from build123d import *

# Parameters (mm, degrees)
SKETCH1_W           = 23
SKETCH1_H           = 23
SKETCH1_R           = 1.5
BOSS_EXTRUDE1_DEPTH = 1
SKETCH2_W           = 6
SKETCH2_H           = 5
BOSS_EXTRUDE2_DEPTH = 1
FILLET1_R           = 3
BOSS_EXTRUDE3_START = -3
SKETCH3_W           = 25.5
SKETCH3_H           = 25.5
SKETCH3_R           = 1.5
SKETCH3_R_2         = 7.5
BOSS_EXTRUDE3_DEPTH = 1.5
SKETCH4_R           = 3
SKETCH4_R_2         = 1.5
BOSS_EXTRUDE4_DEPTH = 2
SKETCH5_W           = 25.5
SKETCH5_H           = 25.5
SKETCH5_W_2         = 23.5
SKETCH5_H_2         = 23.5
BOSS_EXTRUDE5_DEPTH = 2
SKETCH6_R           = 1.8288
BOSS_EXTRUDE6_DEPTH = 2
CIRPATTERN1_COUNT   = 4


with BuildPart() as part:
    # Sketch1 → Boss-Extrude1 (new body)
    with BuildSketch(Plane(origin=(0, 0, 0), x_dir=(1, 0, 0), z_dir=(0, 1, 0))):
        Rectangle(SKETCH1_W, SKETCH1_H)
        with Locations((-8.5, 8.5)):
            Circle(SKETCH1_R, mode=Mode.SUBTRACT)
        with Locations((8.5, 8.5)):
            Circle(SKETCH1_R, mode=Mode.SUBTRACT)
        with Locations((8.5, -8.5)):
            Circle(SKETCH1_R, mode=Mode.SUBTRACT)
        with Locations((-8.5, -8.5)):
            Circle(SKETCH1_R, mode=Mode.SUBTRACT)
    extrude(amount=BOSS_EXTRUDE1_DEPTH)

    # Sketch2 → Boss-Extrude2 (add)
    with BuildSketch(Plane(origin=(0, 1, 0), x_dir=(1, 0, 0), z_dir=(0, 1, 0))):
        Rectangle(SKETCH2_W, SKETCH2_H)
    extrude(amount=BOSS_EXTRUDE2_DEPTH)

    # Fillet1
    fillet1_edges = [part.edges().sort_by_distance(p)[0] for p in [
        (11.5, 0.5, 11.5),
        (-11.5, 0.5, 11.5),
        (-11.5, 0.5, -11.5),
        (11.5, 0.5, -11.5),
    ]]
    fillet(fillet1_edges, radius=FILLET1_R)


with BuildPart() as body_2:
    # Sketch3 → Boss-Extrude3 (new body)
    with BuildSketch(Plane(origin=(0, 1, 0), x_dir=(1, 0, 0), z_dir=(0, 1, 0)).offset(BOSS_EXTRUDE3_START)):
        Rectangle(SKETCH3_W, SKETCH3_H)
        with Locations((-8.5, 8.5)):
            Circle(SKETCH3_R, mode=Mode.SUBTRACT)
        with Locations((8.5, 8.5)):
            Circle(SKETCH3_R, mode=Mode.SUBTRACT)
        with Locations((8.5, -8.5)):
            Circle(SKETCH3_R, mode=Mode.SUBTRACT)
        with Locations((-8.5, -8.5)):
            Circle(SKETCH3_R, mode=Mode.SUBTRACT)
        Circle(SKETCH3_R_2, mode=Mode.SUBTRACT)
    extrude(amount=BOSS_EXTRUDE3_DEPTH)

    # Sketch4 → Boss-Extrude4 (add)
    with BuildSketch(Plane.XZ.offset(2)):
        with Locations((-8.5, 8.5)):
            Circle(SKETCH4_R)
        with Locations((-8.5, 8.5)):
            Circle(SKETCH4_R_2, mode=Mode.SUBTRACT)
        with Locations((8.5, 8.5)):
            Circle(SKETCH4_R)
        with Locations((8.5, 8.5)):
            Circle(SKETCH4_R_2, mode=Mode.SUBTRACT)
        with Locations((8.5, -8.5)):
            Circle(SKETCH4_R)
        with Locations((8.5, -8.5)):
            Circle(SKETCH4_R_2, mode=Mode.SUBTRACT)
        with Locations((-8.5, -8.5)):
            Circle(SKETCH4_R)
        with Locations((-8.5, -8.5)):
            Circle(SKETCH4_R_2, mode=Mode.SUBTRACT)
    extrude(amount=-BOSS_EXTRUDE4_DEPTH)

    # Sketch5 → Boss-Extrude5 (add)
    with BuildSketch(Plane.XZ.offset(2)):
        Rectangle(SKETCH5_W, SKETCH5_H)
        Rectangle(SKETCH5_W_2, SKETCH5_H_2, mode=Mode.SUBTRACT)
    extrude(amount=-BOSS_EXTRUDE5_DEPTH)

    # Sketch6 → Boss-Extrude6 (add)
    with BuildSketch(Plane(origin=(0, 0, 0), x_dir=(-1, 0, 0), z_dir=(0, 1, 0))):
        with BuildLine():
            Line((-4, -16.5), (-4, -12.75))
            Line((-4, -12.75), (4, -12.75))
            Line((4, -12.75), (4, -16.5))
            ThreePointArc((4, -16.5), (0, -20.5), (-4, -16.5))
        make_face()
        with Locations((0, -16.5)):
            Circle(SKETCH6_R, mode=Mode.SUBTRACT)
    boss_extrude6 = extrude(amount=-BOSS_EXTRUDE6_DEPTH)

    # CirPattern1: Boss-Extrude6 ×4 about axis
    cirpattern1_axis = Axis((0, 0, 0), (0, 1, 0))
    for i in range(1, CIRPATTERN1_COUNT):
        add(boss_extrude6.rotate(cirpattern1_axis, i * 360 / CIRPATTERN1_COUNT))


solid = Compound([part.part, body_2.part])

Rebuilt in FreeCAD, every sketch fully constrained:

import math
import FreeCAD as App
import Part
import Sketcher
Q = App.Units.Quantity


def edges_at(feature, points):
    """Names of the edges that pass closest to the given points."""
    edges = feature.Shape.Edges
    near = lambda p: min(range(len(edges)), key=lambda i: edges[i].distToShape(Part.Vertex(*p))[0])
    return sorted({f"Edge{near(p) + 1}" for p in points})

doc = App.newDocument("Part")
body = doc.addObject("PartDesign::Body", "Body")

# Sketch on XZ plane
sketch1 = body.newObject("Sketcher::SketchObject", "Sketch")
sketch1.AttachmentSupport = (doc.getObject("XZ_Plane"), [""])
sketch1.MapMode = "FlatFace"
sketch1.addGeometry(Part.LineSegment(App.Vector(-11.5, -11.5, 0), App.Vector(-11.5, 11.5, 0)), False)
sketch1.addGeometry(Part.LineSegment(App.Vector(-11.5, 11.5, 0), App.Vector(11.5, 11.5, 0)), False)
sketch1.addGeometry(Part.LineSegment(App.Vector(11.5, 11.5, 0), App.Vector(11.5, -11.5, 0)), False)
sketch1.addGeometry(Part.LineSegment(App.Vector(11.5, -11.5, 0), App.Vector(-11.5, -11.5, 0)), False)
sketch1.addGeometry(Part.Circle(App.Vector(-8.5, 8.5, 0), App.Vector(0, 0, 1), 1.5), False)
sketch1.addGeometry(Part.Circle(App.Vector(8.5, 8.5, 0), App.Vector(0, 0, 1), 1.5), False)
sketch1.addGeometry(Part.Circle(App.Vector(-8.5, -8.5, 0), App.Vector(0, 0, 1), 1.5), False)
sketch1.addGeometry(Part.Circle(App.Vector(8.5, -8.5, 0), App.Vector(0, 0, 1), 1.5), False)
sketch1.addConstraint(Sketcher.Constraint("Coincident", 0, 2, 1, 1))
sketch1.addConstraint(Sketcher.Constraint("Coincident", 1, 2, 2, 1))
sketch1.addConstraint(Sketcher.Constraint("Coincident", 2, 2, 3, 1))
sketch1.addConstraint(Sketcher.Constraint("Coincident", 3, 2, 0, 1))
sketch1.addConstraint(Sketcher.Constraint("Vertical", 0))
sketch1.addConstraint(Sketcher.Constraint("Horizontal", 1))
sketch1.addConstraint(Sketcher.Constraint("Vertical", 2))
sketch1.addConstraint(Sketcher.Constraint("Horizontal", 3))
sketch1.addConstraint(Sketcher.Constraint("Equal", 4, 5))
sketch1.addConstraint(Sketcher.Constraint("Equal", 5, 6))
sketch1.addConstraint(Sketcher.Constraint("Equal", 6, 7))
sketch1.addConstraint(Sketcher.Constraint("Symmetric", 5, 3, 6, 3, -1, 1))
sketch1.addConstraint(Sketcher.Constraint("Symmetric", 4, 3, 7, 3, -1, 1))
sketch1.addConstraint(Sketcher.Constraint("Symmetric", 0, 2, 2, 2, -1, 1))
sketch1.addConstraint(Sketcher.Constraint("Symmetric", 4, 3, 5, 3, -2))
sketch1.addConstraint(Sketcher.Constraint("Equal", 3, 0))
sketch1.addConstraint(Sketcher.Constraint("Diameter", 4, Q("3 mm")))
sketch1.addConstraint(Sketcher.Constraint("DistanceX", 1, 1, 1, 2, Q("23 mm")))
sketch1.addConstraint(Sketcher.Constraint("DistanceX", 4, 3, 5, 3, Q("17 mm")))
sketch1.addConstraint(Sketcher.Constraint("DistanceY", 6, 3, 4, 3, Q("17 mm")))
pad1 = body.newObject("PartDesign::Pad", "Pad")
pad1.Profile = sketch1
pad1.Length = 1
pad1.Reversed = True

# Sketch on XZ plane
sketch2 = body.newObject("Sketcher::SketchObject", "Sketch001")
sketch2.AttachmentSupport = (doc.getObject("XZ_Plane"), [""])
sketch2.MapMode = "FlatFace"
sketch2.AttachmentOffset = App.Placement(App.Vector(0, 0, -1), App.Rotation())
sketch2.addGeometry(Part.LineSegment(App.Vector(-3, -2, 0), App.Vector(-3, 2, 0)), False)
sketch2.addGeometry(Part.LineSegment(App.Vector(-3, 2, 0), App.Vector(3, 2, 0)), False)
sketch2.addGeometry(Part.LineSegment(App.Vector(3, 2, 0), App.Vector(3, -2, 0)), False)
sketch2.addGeometry(Part.LineSegment(App.Vector(3, -2, 0), App.Vector(-3, -2, 0)), False)
sketch2.addConstraint(Sketcher.Constraint("Coincident", 0, 2, 1, 1))
sketch2.addConstraint(Sketcher.Constraint("Coincident", 1, 2, 2, 1))
sketch2.addConstraint(Sketcher.Constraint("Coincident", 2, 2, 3, 1))
sketch2.addConstraint(Sketcher.Constraint("Coincident", 3, 2, 0, 1))
sketch2.addConstraint(Sketcher.Constraint("Vertical", 0))
sketch2.addConstraint(Sketcher.Constraint("Horizontal", 1))
sketch2.addConstraint(Sketcher.Constraint("Vertical", 2))
sketch2.addConstraint(Sketcher.Constraint("Horizontal", 3))
sketch2.addConstraint(Sketcher.Constraint("Symmetric", 0, 2, 2, 2, -1, 1))
sketch2.addConstraint(Sketcher.Constraint("DistanceX", 1, 1, 1, 2, Q("6 mm")))
sketch2.addConstraint(Sketcher.Constraint("DistanceY", 0, 1, 0, 2, Q("5 mm")))
pad2 = body.newObject("PartDesign::Pad", "Pad001")
pad2.Profile = sketch2
pad2.Length = 1
pad2.Reversed = True
doc.recompute()

fillet = body.newObject("PartDesign::Fillet", "Fillet")
fillet.Base = (pad2, edges_at(pad2, [
    (11.5, 0.5, 11.5),
    (-11.5, 0.5, 11.5),
    (-11.5, 0.5, -11.5),
    (11.5, 0.5, -11.5),
]))
fillet.Radius = 3
body2 = doc.addObject("PartDesign::Body", "Body001")

# Sketch on XZ plane
sketch3 = body2.newObject("Sketcher::SketchObject", "Sketch002")
sketch3.AttachmentSupport = (doc.getObject("XZ_Plane001"), [""])
sketch3.MapMode = "FlatFace"
sketch3.AttachmentOffset = App.Placement(App.Vector(0, 0, 2), App.Rotation())
sketch3.addGeometry(Part.LineSegment(App.Vector(-12.8, -12.8, 0), App.Vector(-12.8, 12.8, 0)), False)
sketch3.addGeometry(Part.LineSegment(App.Vector(-12.8, 12.8, 0), App.Vector(12.8, 12.8, 0)), False)
sketch3.addGeometry(Part.LineSegment(App.Vector(12.8, 12.8, 0), App.Vector(12.8, -12.8, 0)), False)
sketch3.addGeometry(Part.LineSegment(App.Vector(12.8, -12.8, 0), App.Vector(-12.8, -12.8, 0)), False)
sketch3.addGeometry(Part.Circle(App.Vector(-8.5, 8.5, 0), App.Vector(0, 0, 1), 1.5), False)
sketch3.addGeometry(Part.Circle(App.Vector(8.5, 8.5, 0), App.Vector(0, 0, 1), 1.5), False)
sketch3.addGeometry(Part.Circle(App.Vector(-8.5, -8.5, 0), App.Vector(0, 0, 1), 1.5), False)
sketch3.addGeometry(Part.Circle(App.Vector(0, 0, 0), App.Vector(0, 0, 1), 7.5), False)
sketch3.addGeometry(Part.Circle(App.Vector(8.5, -8.5, 0), App.Vector(0, 0, 1), 1.5), False)
sketch3.addConstraint(Sketcher.Constraint("Coincident", 0, 2, 1, 1))
sketch3.addConstraint(Sketcher.Constraint("Coincident", 1, 2, 2, 1))
sketch3.addConstraint(Sketcher.Constraint("Coincident", 2, 2, 3, 1))
sketch3.addConstraint(Sketcher.Constraint("Coincident", 3, 2, 0, 1))
sketch3.addConstraint(Sketcher.Constraint("Vertical", 0))
sketch3.addConstraint(Sketcher.Constraint("Horizontal", 1))
sketch3.addConstraint(Sketcher.Constraint("Vertical", 2))
sketch3.addConstraint(Sketcher.Constraint("Horizontal", 3))
sketch3.addConstraint(Sketcher.Constraint("Coincident", 7, 3, -1, 1))
sketch3.addConstraint(Sketcher.Constraint("Equal", 4, 5))
sketch3.addConstraint(Sketcher.Constraint("Equal", 5, 6))
sketch3.addConstraint(Sketcher.Constraint("Equal", 6, 8))
sketch3.addConstraint(Sketcher.Constraint("Symmetric", 5, 3, 6, 3, -1, 1))
sketch3.addConstraint(Sketcher.Constraint("Symmetric", 4, 3, 8, 3, -1, 1))
sketch3.addConstraint(Sketcher.Constraint("Symmetric", 0, 2, 2, 2, -1, 1))
sketch3.addConstraint(Sketcher.Constraint("Symmetric", 4, 3, 5, 3, -2))
sketch3.addConstraint(Sketcher.Constraint("Equal", 3, 0))
sketch3.addConstraint(Sketcher.Constraint("Diameter", 4, Q("3 mm")))
sketch3.addConstraint(Sketcher.Constraint("Diameter", 7, Q("15 mm")))
sketch3.addConstraint(Sketcher.Constraint("DistanceX", 1, 1, 1, 2, Q("25.5 mm")))
sketch3.addConstraint(Sketcher.Constraint("DistanceX", 4, 3, 5, 3, Q("17 mm")))
sketch3.addConstraint(Sketcher.Constraint("DistanceY", 6, 3, 4, 3, Q("17 mm")))
pad3 = body2.newObject("PartDesign::Pad", "Pad002")
pad3.Profile = sketch3
pad3.Length = 1.5
pad3.Reversed = True

# Sketch on XZ plane
sketch4 = body2.newObject("Sketcher::SketchObject", "Sketch003")
sketch4.AttachmentSupport = (doc.getObject("XZ_Plane001"), [""])
sketch4.MapMode = "FlatFace"
sketch4.AttachmentOffset = App.Placement(App.Vector(0, 0, 2), App.Rotation())
sketch4.addGeometry(Part.Circle(App.Vector(-8.5, 8.5, 0), App.Vector(0, 0, 1), 3), False)
sketch4.addGeometry(Part.Circle(App.Vector(-8.5, 8.5, 0), App.Vector(0, 0, 1), 1.5), False)
sketch4.addGeometry(Part.Circle(App.Vector(8.5, 8.5, 0), App.Vector(0, 0, 1), 3), False)
sketch4.addGeometry(Part.Circle(App.Vector(8.5, 8.5, 0), App.Vector(0, 0, 1), 1.5), False)
sketch4.addGeometry(Part.Circle(App.Vector(8.5, -8.5, 0), App.Vector(0, 0, 1), 3), False)
sketch4.addGeometry(Part.Circle(App.Vector(8.5, -8.5, 0), App.Vector(0, 0, 1), 1.5), False)
sketch4.addGeometry(Part.Circle(App.Vector(-8.5, -8.5, 0), App.Vector(0, 0, 1), 3), False)
sketch4.addGeometry(Part.Circle(App.Vector(-8.5, -8.5, 0), App.Vector(0, 0, 1), 1.5), False)
sketch4.addConstraint(Sketcher.Constraint("Coincident", 1, 3, 0, 3))
sketch4.addConstraint(Sketcher.Constraint("Coincident", 3, 3, 2, 3))
sketch4.addConstraint(Sketcher.Constraint("Coincident", 5, 3, 4, 3))
sketch4.addConstraint(Sketcher.Constraint("Coincident", 7, 3, 6, 3))
sketch4.addConstraint(Sketcher.Constraint("Equal", 0, 2))
sketch4.addConstraint(Sketcher.Constraint("Equal", 1, 3))
sketch4.addConstraint(Sketcher.Constraint("Equal", 2, 4))
sketch4.addConstraint(Sketcher.Constraint("Equal", 3, 5))
sketch4.addConstraint(Sketcher.Constraint("Equal", 4, 6))
sketch4.addConstraint(Sketcher.Constraint("Equal", 5, 7))
sketch4.addConstraint(Sketcher.Constraint("Symmetric", 0, 3, 4, 3, -1, 1))
sketch4.addConstraint(Sketcher.Constraint("Symmetric", 2, 3, 6, 3, -1, 1))
sketch4.addConstraint(Sketcher.Constraint("Symmetric", 0, 3, 2, 3, -2))
sketch4.addConstraint(Sketcher.Constraint("Diameter", 0, Q("6 mm")))
sketch4.addConstraint(Sketcher.Constraint("Diameter", 1, Q("3 mm")))
sketch4.addConstraint(Sketcher.Constraint("DistanceX", 0, 3, 2, 3, Q("17 mm")))
sketch4.addConstraint(Sketcher.Constraint("DistanceY", 4, 3, 2, 3, Q("17 mm")))
pad4 = body2.newObject("PartDesign::Pad", "Pad003")
pad4.Profile = sketch4
pad4.Length = 2
pad4.Reversed = True

# Sketch on XZ plane
sketch5 = body2.newObject("Sketcher::SketchObject", "Sketch004")
sketch5.AttachmentSupport = (doc.getObject("XZ_Plane001"), [""])
sketch5.MapMode = "FlatFace"
sketch5.AttachmentOffset = App.Placement(App.Vector(0, 0, 2), App.Rotation())
sketch5.addGeometry(Part.LineSegment(App.Vector(-13, 13, 0), App.Vector(-13, -13, 0)), False)
sketch5.addGeometry(Part.LineSegment(App.Vector(-13, -13, 0), App.Vector(13, -13, 0)), False)
sketch5.addGeometry(Part.LineSegment(App.Vector(13, -13, 0), App.Vector(13, 13, 0)), False)
sketch5.addGeometry(Part.LineSegment(App.Vector(13, 13, 0), App.Vector(-13, 13, 0)), False)
sketch5.addGeometry(Part.LineSegment(App.Vector(12, -12, 0), App.Vector(-12, -12, 0)), False)
sketch5.addGeometry(Part.LineSegment(App.Vector(-12, -12, 0), App.Vector(-12, 12, 0)), False)
sketch5.addGeometry(Part.LineSegment(App.Vector(-12, 12, 0), App.Vector(12, 12, 0)), False)
sketch5.addGeometry(Part.LineSegment(App.Vector(12, 12, 0), App.Vector(12, -12, 0)), False)
sketch5.addConstraint(Sketcher.Constraint("Coincident", 0, 2, 1, 1))
sketch5.addConstraint(Sketcher.Constraint("Coincident", 1, 2, 2, 1))
sketch5.addConstraint(Sketcher.Constraint("Coincident", 2, 2, 3, 1))
sketch5.addConstraint(Sketcher.Constraint("Coincident", 3, 2, 0, 1))
sketch5.addConstraint(Sketcher.Constraint("Coincident", 4, 2, 5, 1))
sketch5.addConstraint(Sketcher.Constraint("Coincident", 5, 2, 6, 1))
sketch5.addConstraint(Sketcher.Constraint("Coincident", 6, 2, 7, 1))
sketch5.addConstraint(Sketcher.Constraint("Coincident", 7, 2, 4, 1))
sketch5.addConstraint(Sketcher.Constraint("Vertical", 0))
sketch5.addConstraint(Sketcher.Constraint("Horizontal", 1))
sketch5.addConstraint(Sketcher.Constraint("Vertical", 2))
sketch5.addConstraint(Sketcher.Constraint("Horizontal", 3))
sketch5.addConstraint(Sketcher.Constraint("Horizontal", 4))
sketch5.addConstraint(Sketcher.Constraint("Vertical", 5))
sketch5.addConstraint(Sketcher.Constraint("Horizontal", 6))
sketch5.addConstraint(Sketcher.Constraint("Vertical", 7))
sketch5.addConstraint(Sketcher.Constraint("Symmetric", 0, 2, 2, 2, -1, 1))
sketch5.addConstraint(Sketcher.Constraint("Symmetric", 4, 2, 6, 2, -1, 1))
sketch5.addConstraint(Sketcher.Constraint("Equal", 3, 0))
sketch5.addConstraint(Sketcher.Constraint("Equal", 6, 5))
sketch5.addConstraint(Sketcher.Constraint("DistanceX", 1, 1, 1, 2, Q("25.5 mm")))
sketch5.addConstraint(Sketcher.Constraint("DistanceX", 4, 2, 4, 1, Q("23.5 mm")))
pad5 = body2.newObject("PartDesign::Pad", "Pad004")
pad5.Profile = sketch5
pad5.Length = 2
pad5.Reversed = True

# Sketch on XZ plane
sketch6 = body2.newObject("Sketcher::SketchObject", "Sketch005")
sketch6.AttachmentSupport = (doc.getObject("XZ_Plane001"), [""])
sketch6.MapMode = "FlatFace"
sketch6.addGeometry(Part.LineSegment(App.Vector(4, -12.8, 0), App.Vector(4, -16.5, 0)), False)
sketch6.addGeometry(Part.ArcOfCircle(Part.Circle(App.Vector(0, -16.5, 0), App.Vector(0, 0, 1), 4), math.radians(180), math.radians(360)), False)
sketch6.addGeometry(Part.LineSegment(App.Vector(-4, -16.5, 0), App.Vector(-4, -12.8, 0)), False)
sketch6.addGeometry(Part.LineSegment(App.Vector(-4, -12.8, 0), App.Vector(4, -12.8, 0)), False)
sketch6.addGeometry(Part.Circle(App.Vector(0, -16.5, 0), App.Vector(0, 0, 1), 1.8), False)
sketch6.addConstraint(Sketcher.Constraint("Tangent", 0, 2, 1, 2))
sketch6.addConstraint(Sketcher.Constraint("Tangent", 1, 1, 2, 1))
sketch6.addConstraint(Sketcher.Constraint("Coincident", 2, 2, 3, 1))
sketch6.addConstraint(Sketcher.Constraint("Coincident", 3, 2, 0, 1))
sketch6.addConstraint(Sketcher.Constraint("Vertical", 0))
sketch6.addConstraint(Sketcher.Constraint("Vertical", 2))
sketch6.addConstraint(Sketcher.Constraint("Horizontal", 3))
sketch6.addConstraint(Sketcher.Constraint("Coincident", 4, 3, 1, 3))
sketch6.addConstraint(Sketcher.Constraint("PointOnObject", 1, 3, -2))
sketch6.addConstraint(Sketcher.Constraint("Radius", 1, Q("4 mm")))
sketch6.addConstraint(Sketcher.Constraint("Diameter", 4, Q("3.6576 mm")))
sketch6.addConstraint(Sketcher.Constraint("DistanceY", 0, 2, 0, 1, Q("3.75 mm")))
sketch6.addConstraint(Sketcher.Constraint("DistanceY", 1, 3, -1, 1, Q("16.5 mm")))
pad6 = body2.newObject("PartDesign::Pad", "Pad005")
pad6.Profile = sketch6
pad6.Length = 2
doc.recompute()

polarpattern = body2.newObject("PartDesign::PolarPattern", "PolarPattern")
polarpattern.Originals = [pad6]
polarpattern.Axis = (doc.getObject("Y_Axis001"), [""])
polarpattern.Angle = 360
polarpattern.Occurrences = 4
body2.Tip = polarpattern

doc.recompute()
